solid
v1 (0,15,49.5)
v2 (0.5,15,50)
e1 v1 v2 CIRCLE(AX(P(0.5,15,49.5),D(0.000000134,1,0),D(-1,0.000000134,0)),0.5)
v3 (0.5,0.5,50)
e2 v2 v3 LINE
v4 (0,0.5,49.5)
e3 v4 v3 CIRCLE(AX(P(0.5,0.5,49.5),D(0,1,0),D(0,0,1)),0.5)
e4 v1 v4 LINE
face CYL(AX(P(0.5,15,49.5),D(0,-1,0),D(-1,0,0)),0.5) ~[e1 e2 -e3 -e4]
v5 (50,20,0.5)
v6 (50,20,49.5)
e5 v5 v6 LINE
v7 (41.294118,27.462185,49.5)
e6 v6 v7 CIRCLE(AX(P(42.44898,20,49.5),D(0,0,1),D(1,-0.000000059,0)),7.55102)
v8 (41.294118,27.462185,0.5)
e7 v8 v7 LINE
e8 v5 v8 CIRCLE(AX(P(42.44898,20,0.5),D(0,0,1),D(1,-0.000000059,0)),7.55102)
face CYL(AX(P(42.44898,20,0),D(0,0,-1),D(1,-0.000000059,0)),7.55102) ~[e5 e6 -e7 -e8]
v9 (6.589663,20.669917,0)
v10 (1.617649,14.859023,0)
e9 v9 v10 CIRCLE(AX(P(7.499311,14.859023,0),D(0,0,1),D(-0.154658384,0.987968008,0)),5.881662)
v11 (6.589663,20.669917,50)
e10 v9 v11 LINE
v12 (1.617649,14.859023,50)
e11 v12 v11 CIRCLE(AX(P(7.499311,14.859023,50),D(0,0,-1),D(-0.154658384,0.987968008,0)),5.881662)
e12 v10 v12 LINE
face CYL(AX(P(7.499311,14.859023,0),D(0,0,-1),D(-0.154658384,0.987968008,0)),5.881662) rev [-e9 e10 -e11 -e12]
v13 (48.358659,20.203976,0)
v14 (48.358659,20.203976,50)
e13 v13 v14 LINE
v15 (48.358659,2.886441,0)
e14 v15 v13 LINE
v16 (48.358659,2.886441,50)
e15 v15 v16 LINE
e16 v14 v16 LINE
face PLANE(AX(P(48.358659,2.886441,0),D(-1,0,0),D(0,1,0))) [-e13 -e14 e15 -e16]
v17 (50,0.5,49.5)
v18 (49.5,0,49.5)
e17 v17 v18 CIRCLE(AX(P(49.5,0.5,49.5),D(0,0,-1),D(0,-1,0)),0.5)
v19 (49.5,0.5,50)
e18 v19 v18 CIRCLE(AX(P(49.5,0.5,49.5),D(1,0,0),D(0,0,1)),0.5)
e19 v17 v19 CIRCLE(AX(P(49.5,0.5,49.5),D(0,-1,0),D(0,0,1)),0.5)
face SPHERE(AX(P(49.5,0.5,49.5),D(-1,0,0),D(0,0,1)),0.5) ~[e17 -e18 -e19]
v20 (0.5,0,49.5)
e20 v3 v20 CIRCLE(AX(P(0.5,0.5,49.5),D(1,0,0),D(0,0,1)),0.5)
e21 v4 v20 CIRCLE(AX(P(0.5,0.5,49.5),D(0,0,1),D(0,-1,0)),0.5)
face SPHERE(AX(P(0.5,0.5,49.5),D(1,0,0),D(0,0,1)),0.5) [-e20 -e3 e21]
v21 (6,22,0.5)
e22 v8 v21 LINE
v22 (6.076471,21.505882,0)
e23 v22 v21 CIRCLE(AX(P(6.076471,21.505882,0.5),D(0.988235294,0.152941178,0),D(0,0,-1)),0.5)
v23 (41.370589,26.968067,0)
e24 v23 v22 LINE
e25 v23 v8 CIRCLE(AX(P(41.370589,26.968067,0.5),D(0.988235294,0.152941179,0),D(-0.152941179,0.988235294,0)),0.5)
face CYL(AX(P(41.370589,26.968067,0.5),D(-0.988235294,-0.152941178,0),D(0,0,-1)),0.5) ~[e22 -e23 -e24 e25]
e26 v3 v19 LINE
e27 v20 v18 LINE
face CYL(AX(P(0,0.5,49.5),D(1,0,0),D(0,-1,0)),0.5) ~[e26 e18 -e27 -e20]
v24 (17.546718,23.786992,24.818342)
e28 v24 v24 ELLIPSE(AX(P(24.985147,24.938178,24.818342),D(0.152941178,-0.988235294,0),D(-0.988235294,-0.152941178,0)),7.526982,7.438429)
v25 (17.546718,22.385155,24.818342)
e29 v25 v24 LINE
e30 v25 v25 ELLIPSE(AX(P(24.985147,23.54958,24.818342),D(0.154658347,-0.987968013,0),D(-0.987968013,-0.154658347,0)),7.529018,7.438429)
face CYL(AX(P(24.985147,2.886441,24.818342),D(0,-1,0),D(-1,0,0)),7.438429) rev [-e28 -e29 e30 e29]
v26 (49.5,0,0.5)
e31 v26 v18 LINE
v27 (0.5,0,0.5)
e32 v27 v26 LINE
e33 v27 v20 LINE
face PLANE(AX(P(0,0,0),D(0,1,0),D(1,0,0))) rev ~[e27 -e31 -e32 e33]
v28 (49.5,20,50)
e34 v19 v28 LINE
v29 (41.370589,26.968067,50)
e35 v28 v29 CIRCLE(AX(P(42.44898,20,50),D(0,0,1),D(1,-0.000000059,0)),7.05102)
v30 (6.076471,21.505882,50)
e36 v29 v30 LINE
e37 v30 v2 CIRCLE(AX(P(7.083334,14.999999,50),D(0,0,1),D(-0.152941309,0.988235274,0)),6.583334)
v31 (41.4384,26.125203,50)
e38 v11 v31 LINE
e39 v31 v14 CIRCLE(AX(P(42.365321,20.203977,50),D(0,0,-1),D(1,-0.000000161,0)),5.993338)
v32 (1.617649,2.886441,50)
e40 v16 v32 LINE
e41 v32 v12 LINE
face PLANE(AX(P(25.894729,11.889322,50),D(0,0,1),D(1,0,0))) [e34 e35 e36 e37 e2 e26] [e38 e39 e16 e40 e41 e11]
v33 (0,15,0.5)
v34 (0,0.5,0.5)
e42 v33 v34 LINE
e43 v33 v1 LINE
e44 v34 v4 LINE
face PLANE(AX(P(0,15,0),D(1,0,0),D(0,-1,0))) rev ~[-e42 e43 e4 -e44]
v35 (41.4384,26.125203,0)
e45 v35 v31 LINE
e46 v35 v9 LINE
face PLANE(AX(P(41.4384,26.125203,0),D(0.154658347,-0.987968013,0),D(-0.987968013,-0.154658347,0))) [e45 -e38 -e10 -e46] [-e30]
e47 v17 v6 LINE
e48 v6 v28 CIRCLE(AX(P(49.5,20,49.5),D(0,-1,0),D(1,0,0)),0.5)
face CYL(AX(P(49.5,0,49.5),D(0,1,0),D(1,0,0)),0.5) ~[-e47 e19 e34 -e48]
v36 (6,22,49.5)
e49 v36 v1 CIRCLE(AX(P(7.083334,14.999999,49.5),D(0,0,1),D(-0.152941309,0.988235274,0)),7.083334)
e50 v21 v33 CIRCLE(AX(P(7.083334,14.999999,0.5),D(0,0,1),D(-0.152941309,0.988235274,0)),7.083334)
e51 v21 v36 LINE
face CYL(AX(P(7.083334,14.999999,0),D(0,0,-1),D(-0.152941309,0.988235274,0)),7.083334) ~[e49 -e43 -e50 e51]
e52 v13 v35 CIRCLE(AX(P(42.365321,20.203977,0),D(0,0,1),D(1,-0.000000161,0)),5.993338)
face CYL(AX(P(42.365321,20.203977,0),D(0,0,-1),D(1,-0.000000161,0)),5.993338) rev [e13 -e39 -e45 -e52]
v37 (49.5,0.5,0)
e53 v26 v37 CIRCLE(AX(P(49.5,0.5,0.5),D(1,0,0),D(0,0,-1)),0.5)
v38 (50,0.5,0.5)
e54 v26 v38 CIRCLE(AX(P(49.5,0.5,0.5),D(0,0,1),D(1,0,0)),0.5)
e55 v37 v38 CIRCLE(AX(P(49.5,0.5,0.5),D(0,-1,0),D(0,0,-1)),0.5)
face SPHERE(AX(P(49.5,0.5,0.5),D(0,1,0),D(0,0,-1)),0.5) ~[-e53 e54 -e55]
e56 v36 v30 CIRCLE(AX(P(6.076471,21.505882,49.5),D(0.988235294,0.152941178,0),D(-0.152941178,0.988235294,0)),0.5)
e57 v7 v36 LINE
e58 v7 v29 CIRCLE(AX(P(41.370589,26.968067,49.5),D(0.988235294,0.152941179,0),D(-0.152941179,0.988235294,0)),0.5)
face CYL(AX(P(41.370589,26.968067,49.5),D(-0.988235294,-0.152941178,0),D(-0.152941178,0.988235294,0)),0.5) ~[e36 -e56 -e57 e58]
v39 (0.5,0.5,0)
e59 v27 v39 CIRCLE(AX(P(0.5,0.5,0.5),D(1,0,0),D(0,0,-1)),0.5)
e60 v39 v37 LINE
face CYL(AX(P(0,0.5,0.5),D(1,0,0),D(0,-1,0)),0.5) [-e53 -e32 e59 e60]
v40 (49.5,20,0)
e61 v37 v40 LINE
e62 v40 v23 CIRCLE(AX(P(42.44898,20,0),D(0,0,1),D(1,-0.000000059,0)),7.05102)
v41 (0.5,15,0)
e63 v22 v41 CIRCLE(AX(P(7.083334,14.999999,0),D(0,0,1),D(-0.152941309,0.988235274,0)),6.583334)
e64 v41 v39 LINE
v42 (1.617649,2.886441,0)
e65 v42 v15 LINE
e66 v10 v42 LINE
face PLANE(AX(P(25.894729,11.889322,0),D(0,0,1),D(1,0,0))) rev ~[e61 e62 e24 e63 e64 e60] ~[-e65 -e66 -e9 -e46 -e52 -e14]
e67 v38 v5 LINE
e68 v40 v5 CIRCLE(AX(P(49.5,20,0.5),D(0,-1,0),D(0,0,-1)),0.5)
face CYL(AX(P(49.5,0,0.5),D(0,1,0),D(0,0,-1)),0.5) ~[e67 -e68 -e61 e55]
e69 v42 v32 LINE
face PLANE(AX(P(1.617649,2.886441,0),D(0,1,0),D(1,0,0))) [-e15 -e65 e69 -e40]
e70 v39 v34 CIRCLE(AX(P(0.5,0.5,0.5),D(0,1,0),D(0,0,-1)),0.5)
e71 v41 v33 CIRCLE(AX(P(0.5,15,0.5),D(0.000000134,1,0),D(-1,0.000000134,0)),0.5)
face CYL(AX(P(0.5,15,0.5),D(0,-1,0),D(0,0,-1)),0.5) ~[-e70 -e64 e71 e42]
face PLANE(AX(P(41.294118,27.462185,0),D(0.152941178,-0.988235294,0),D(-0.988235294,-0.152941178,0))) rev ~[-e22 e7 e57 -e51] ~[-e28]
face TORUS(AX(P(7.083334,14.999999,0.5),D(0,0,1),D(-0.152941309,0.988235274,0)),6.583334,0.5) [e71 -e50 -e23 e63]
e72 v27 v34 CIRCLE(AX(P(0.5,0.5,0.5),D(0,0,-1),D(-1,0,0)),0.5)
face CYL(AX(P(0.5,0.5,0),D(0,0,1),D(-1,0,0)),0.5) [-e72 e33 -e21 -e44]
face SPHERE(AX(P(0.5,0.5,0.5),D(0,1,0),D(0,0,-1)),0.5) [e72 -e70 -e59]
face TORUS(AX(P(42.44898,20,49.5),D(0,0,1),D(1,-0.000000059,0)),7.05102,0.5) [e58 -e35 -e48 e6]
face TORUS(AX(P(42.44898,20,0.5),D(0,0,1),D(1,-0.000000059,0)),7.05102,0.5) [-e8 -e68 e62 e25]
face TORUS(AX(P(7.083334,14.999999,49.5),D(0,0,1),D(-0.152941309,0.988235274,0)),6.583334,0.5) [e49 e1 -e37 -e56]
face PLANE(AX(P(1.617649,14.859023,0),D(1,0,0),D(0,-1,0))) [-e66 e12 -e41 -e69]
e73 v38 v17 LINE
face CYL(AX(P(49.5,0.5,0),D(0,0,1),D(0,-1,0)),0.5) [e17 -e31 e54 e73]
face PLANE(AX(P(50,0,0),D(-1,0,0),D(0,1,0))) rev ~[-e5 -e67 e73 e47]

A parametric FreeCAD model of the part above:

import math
import FreeCAD as App
import Part
import Sketcher
Q = App.Units.Quantity


def edges_at(feature, points):
    """Names of the edges that pass closest to the given points."""
    edges = feature.Shape.Edges
    near = lambda p: min(range(len(edges)), key=lambda i: edges[i].distToShape(Part.Vertex(*p))[0])
    return sorted({f"Edge{near(p) + 1}" for p in points})

doc = App.newDocument("Part")
body = doc.addObject("PartDesign::Body", "Body")

sketch1 = body.newObject("Sketcher::SketchObject", "Sketch")
sketch1.AttachmentSupport = (doc.getObject("XY_Plane"), [""])
sketch1.MapMode = "FlatFace"
sketch1.addGeometry([
    Part.LineSegment(App.Vector(0, 15, 0), App.Vector(0, 0, 0)),
    Part.LineSegment(App.Vector(0, 0, 0), App.Vector(50, 0, 0)),
    Part.LineSegment(App.Vector(50, 0, 0), App.Vector(50, 20, 0)),
    Part.ArcOfCircle(Part.Circle(App.Vector(42, 20, 0), App.Vector(0, 0, 1), 8), math.radians(0), math.radians(99)),
    Part.LineSegment(App.Vector(41, 27, 0), App.Vector(6, 22, 0)),
    Part.ArcOfCircle(Part.Circle(App.Vector(7, 15, 0), App.Vector(0, 0, 1), 7), math.radians(99), math.radians(180)),
], False)
sketch1.addConstraint([
    Sketcher.Constraint("Coincident", 0, 2, 1, 1),
    Sketcher.Constraint("Coincident", 1, 2, 2, 1),
    Sketcher.Constraint("Tangent", 2, 2, 3, 1),
    Sketcher.Constraint("Tangent", 3, 2, 4, 1),
    Sketcher.Constraint("Tangent", 4, 2, 5, 1),
    Sketcher.Constraint("Tangent", 5, 2, 0, 1),
    Sketcher.Constraint("Vertical", 0),
    Sketcher.Constraint("Horizontal", 1),
    Sketcher.Constraint("Vertical", 2),
    Sketcher.Constraint("Coincident", 0, 2, -1, 1),
    Sketcher.Constraint("DistanceX", 1, 1, 1, 2, Q("50 mm")),
    Sketcher.Constraint("DistanceY", 0, 2, 0, 1, Q("15 mm")),
    Sketcher.Constraint("DistanceY", 2, 1, 2, 2, Q("20 mm")),
    Sketcher.Constraint("DistanceX", -1, 1, 4, 2, Q("6 mm")),
    Sketcher.Constraint("DistanceY", -1, 1, 4, 2, Q("22 mm")),
])
pad1 = body.newObject("PartDesign::Pad", "Pad")
pad1.Profile = sketch1
pad1.Length = 50

sketch2 = body.newObject("Sketcher::SketchObject", "Sketch001")
sketch2.AttachmentSupport = (doc.getObject("XY_Plane"), [""])
sketch2.MapMode = "FlatFace"
sketch2.addGeometry([
    Part.LineSegment(App.Vector(2, 15, 0), App.Vector(2, 3, 0)),
    Part.LineSegment(App.Vector(2, 3, 0), App.Vector(48, 3, 0)),
    Part.LineSegment(App.Vector(48, 3, 0), App.Vector(48, 20, 0)),
    Part.ArcOfCircle(Part.Circle(App.Vector(42, 20, 0), App.Vector(0, 0, 1), 6), math.radians(0), math.radians(99)),
    Part.LineSegment(App.Vector(41, 26, 0), App.Vector(7, 21, 0)),
    Part.ArcOfCircle(Part.Circle(App.Vector(7, 15, 0), App.Vector(0, 0, 1), 6), math.radians(99), math.radians(180)),
], False)
sketch2.addConstraint([
    Sketcher.Constraint("Coincident", 0, 2, 1, 1),
    Sketcher.Constraint("Coincident", 1, 2, 2, 1),
    Sketcher.Constraint("Tangent", 2, 2, 3, 1),
    Sketcher.Constraint("Tangent", 3, 2, 4, 1),
    Sketcher.Constraint("Tangent", 4, 2, 5, 1),
    Sketcher.Constraint("Tangent", 5, 2, 0, 1),
    Sketcher.Constraint("Vertical", 0),
    Sketcher.Constraint("Horizontal", 1),
    Sketcher.Constraint("Vertical", 2),
    Sketcher.Constraint("Radius", 3, Q("5.993338 mm")),
    Sketcher.Constraint("Radius", 5, Q("5.881662 mm")),
    Sketcher.Constraint("DistanceX", 1, 1, 1, 2, Q("46.74101 mm")),
    Sketcher.Constraint("DistanceX", -1, 1, 3, 2, Q("41.4384 mm")),
    Sketcher.Constraint("DistanceY", 0, 2, 0, 1, Q("11.972582 mm")),
    Sketcher.Constraint("DistanceY", 2, 1, 2, 2, Q("17.317535 mm")),
    Sketcher.Constraint("DistanceY", -1, 1, 0, 2, Q("2.886441 mm")),
])
pocket1 = body.newObject("PartDesign::Pocket", "Pocket")
pocket1.Profile = sketch2
pocket1.Type = "ThroughAll"
pocket1.Reversed = True
doc.recompute()

fillet = body.newObject("PartDesign::Fillet", "Fillet")
fillet.Base = (pocket1, edges_at(pocket1, [
    (25, 0, 50),
    (0, 7.5, 50),
    (1.705, 19.61, 50),
    (23.647, 24.731, 50),
    (47.363, 25.733, 50),
    (50, 10, 50),
    (50, 10, 0),
    (25, 0, 0),
    (50, 0, 25),
    (0, 0, 25),
]))
fillet.Radius = 0.5

sketch3 = body.newObject("Sketcher::SketchObject", "Sketch002")
sketch3.AttachmentSupport = (doc.getObject("XZ_Plane"), [""])
sketch3.MapMode = "FlatFace"
sketch3.AttachmentOffset = App.Placement(App.Vector(0, 0, -2.886441), App.Rotation())
sketch3.addGeometry(Part.Circle(App.Vector(25, 25, 0), App.Vector(0, 0, 1), 7), False)
sketch3.addConstraint([
    Sketcher.Constraint("Diameter", 0, Q("14.876858 mm")),
    Sketcher.Constraint("DistanceX", -1, 1, 0, 3, Q("24.985147 mm")),
    Sketcher.Constraint("DistanceY", -1, 1, 0, 3, Q("24.818342 mm")),
])
pocket2 = body.newObject("PartDesign::Pocket", "Pocket001")
pocket2.Profile = sketch3
pocket2.Type = "ThroughAll"

doc.recompute()
